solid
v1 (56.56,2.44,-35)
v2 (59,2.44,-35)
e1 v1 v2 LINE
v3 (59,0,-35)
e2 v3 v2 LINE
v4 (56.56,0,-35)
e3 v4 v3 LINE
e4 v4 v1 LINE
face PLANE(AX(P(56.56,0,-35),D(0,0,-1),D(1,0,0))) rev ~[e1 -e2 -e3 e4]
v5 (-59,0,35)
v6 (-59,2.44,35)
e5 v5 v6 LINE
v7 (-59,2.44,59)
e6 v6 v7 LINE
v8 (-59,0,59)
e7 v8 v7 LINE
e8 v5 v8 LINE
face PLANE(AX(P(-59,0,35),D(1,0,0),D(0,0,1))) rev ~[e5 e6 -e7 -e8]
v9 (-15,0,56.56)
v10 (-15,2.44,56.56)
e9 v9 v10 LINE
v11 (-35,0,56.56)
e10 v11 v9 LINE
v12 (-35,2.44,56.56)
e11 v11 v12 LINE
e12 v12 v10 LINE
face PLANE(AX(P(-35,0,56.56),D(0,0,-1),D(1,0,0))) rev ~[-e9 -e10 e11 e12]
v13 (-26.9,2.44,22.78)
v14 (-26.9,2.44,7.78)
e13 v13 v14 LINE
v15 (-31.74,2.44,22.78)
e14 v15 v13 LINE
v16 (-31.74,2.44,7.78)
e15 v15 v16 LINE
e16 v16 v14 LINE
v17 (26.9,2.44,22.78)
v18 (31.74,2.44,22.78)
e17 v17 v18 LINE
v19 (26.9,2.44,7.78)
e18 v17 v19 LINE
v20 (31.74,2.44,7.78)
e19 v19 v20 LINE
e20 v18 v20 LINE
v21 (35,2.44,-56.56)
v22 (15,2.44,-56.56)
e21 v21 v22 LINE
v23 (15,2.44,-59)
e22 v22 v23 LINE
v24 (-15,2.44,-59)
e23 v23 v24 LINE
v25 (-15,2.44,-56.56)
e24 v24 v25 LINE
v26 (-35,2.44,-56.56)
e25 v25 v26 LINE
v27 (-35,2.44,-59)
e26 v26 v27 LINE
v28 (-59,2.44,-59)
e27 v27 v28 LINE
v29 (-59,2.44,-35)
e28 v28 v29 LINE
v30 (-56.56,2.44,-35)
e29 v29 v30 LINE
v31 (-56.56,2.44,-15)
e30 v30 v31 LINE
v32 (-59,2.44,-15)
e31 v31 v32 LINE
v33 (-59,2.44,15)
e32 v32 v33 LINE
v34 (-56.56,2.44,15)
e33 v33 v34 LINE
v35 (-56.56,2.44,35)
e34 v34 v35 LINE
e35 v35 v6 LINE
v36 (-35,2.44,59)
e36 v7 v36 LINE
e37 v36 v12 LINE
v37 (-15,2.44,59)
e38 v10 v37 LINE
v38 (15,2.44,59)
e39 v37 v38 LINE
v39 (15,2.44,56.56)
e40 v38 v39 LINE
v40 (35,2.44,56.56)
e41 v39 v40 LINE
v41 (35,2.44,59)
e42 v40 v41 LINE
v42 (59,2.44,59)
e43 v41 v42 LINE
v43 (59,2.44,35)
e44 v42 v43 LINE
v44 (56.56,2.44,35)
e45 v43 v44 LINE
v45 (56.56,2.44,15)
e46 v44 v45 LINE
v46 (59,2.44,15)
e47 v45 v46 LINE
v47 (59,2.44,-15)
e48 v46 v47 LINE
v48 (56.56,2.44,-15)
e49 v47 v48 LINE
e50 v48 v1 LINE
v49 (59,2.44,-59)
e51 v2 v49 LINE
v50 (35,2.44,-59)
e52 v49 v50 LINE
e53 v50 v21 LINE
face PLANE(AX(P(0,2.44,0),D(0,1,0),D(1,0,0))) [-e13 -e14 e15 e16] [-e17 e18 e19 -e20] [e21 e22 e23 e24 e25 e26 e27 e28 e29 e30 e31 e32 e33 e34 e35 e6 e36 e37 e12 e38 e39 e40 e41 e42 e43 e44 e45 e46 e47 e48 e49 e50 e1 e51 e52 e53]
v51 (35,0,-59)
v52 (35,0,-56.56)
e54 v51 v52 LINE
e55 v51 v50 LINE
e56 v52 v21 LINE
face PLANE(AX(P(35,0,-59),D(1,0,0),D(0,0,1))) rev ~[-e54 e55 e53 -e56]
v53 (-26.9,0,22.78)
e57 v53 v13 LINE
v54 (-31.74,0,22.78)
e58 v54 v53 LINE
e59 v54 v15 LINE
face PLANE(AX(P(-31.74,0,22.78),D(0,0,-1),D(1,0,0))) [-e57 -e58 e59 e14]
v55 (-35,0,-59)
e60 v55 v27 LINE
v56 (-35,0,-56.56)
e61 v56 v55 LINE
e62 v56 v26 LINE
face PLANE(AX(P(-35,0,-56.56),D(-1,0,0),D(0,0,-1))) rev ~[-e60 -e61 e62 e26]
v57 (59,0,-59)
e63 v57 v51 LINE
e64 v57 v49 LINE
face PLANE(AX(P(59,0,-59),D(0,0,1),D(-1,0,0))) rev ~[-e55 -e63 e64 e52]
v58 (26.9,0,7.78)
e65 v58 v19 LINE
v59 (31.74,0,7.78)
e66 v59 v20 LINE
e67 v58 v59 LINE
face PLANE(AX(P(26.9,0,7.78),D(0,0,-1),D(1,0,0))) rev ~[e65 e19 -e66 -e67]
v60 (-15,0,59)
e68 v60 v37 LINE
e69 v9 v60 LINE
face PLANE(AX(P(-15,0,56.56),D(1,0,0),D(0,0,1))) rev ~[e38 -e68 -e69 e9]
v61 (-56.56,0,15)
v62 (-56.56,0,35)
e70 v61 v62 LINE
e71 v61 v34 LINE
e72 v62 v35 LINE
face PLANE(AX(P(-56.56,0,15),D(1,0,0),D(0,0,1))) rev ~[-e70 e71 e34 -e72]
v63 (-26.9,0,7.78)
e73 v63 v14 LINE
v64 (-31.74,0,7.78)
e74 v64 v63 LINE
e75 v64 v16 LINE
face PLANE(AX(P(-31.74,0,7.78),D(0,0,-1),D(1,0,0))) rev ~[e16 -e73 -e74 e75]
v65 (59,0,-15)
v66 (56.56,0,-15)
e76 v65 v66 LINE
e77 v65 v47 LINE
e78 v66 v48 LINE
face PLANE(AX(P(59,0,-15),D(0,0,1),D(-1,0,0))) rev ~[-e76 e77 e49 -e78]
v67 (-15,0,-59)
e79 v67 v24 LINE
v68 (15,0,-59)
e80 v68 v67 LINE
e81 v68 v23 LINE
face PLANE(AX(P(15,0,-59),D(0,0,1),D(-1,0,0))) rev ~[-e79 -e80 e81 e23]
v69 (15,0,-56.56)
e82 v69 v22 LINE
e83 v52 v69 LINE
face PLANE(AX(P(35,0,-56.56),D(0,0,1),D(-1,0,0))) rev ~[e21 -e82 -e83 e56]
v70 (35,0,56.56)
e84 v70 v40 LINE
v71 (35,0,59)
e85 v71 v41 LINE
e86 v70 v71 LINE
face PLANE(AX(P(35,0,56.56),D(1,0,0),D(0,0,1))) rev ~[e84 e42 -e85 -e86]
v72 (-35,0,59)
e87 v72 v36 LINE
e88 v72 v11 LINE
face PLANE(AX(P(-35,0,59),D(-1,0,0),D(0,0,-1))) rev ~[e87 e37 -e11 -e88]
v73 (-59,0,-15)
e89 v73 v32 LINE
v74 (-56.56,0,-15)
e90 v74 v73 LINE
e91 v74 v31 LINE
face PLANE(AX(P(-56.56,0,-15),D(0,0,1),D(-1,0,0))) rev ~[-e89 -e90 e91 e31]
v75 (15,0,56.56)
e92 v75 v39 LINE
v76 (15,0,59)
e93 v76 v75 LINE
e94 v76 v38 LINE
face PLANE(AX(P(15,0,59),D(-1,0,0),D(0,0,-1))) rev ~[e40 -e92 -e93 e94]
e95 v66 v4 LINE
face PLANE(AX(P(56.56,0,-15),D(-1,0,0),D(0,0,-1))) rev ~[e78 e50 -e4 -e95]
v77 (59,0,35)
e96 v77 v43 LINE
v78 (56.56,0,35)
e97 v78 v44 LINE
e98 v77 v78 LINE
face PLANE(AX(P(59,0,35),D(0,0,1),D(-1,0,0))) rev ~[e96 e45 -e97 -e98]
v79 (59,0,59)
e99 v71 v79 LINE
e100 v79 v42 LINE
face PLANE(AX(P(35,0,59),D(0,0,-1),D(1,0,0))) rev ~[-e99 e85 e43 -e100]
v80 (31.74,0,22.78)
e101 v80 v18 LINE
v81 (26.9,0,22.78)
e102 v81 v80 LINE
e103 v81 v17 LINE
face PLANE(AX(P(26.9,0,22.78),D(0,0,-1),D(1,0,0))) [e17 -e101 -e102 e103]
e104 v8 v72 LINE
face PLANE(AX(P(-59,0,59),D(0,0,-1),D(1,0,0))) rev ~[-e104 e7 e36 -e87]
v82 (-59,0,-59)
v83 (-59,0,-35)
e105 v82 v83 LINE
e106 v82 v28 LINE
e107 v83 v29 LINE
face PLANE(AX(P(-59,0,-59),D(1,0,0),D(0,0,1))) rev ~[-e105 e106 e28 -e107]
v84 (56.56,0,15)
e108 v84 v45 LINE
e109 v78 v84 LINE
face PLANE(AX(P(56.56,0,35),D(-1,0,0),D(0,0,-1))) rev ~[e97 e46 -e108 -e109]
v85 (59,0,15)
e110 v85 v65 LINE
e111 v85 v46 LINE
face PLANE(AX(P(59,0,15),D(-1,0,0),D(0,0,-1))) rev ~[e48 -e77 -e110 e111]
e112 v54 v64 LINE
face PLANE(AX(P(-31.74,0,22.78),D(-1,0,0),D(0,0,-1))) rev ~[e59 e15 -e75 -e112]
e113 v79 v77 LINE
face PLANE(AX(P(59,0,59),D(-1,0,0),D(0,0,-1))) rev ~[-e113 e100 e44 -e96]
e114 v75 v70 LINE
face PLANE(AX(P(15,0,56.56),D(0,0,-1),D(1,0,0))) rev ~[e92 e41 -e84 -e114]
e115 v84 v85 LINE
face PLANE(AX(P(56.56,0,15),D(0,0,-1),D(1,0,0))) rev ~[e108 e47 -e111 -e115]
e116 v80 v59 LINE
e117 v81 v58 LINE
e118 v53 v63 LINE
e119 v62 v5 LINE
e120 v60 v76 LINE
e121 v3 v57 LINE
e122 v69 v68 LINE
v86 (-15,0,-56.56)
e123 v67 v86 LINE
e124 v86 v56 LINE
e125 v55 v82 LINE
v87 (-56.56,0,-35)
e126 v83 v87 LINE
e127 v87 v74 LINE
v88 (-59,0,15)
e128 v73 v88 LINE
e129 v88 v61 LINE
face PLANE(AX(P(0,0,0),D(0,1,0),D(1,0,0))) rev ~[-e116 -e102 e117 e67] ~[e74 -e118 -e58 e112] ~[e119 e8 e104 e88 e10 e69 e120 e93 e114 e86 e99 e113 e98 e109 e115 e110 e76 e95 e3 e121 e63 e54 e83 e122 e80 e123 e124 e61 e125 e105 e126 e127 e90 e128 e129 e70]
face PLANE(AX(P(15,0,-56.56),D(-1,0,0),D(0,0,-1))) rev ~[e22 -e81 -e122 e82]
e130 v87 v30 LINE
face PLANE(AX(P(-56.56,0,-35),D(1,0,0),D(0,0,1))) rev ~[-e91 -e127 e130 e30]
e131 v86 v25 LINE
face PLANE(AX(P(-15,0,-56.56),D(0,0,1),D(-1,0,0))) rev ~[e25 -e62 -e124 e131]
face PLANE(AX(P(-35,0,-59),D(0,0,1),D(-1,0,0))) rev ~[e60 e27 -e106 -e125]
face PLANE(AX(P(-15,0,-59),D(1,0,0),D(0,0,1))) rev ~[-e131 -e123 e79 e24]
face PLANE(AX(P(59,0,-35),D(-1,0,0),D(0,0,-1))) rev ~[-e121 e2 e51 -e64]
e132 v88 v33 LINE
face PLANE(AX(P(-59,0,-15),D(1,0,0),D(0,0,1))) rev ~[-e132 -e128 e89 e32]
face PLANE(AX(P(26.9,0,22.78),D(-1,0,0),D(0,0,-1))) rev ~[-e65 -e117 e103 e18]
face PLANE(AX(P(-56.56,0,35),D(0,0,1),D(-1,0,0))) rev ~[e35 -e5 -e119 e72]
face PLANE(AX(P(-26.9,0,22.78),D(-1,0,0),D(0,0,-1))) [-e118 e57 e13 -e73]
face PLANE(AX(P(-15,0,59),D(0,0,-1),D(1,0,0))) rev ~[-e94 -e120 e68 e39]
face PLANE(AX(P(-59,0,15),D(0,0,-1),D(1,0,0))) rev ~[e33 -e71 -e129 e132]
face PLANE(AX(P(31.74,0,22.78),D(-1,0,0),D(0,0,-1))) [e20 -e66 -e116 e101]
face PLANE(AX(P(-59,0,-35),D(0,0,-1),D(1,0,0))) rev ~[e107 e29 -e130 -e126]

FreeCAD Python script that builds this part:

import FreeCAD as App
import Part
import Sketcher


def add_polygon(sketch, points):
    """Adds a closed chain of lines whose ends are joined by coincident constraints."""
    first, n = sketch.GeometryCount, len(points)
    for a, b in zip(points, points[1:] + points[:1]):
        sketch.addGeometry(Part.LineSegment(App.Vector(*a, 0), App.Vector(*b, 0)), False)
    for i in range(n):
        sketch.addConstraint(Sketcher.Constraint("Coincident", first + i, 2, first + (i + 1) % n, 1))

doc = App.newDocument("Part")
params = doc.addObject("Spreadsheet::Sheet", "Params")
for row, (alias, value) in enumerate([
    ("sketch1_width", "24 mm"),
    ("sketch1_width2", "20 mm"),
    ("sketch1_width3", "30 mm"),
    ("sketch1_height", "15 mm"),
    ("sketch1_width4", "2.44 mm"),
    ("pad1_length", "2.44 mm"),
], start=1):
    params.set(f"A{row}", alias)
    params.set(f"B{row}", "=" + value)
    params.setAlias(f"B{row}", alias)

body = doc.addObject("PartDesign::Body", "Body")

# Sketch on XZ plane
sketch1 = doc.addObject("Sketcher::SketchObject", "Sketch")
body.addObject(sketch1)
sketch1.AttachmentSupport = (doc.XZ_Plane, [""])
sketch1.MapMode = "FlatFace"
add_polygon(sketch1, [(-59, 59), (-35, 59), (-35, 56.6), (-15, 56.6), (-15, 59), (15, 59), (15, 56.6), (35, 56.6), (35, 59), (59, 59), (59, 35), (56.6, 35), (56.6, 15), (59, 15), (59, -15), (56.6, -15), (56.6, -35), (59, -35), (59, -59), (35, -59), (35, -56.6), (15, -56.6), (15, -59), (-15, -59), (-15, -56.6), (-35, -56.6), (-35, -59), (-59, -59), (-59, -35), (-56.6, -35), (-56.6, -15), (-59, -15), (-59, 15), (-56.6, 15), (-56.6, 35), (-59, 35)])  # lines 0-35
add_polygon(sketch1, [(-26.9, 22.8), (-31.7, 22.8), (-31.7, 7.8), (-26.9, 7.8)])  # lines 36-39
add_polygon(sketch1, [(31.7, 22.8), (26.9, 22.8), (26.9, 7.8), (31.7, 7.8)])  # lines 40-43
sketch1.addConstraint(Sketcher.Constraint("Horizontal", 0))
sketch1.addConstraint(Sketcher.Constraint("Vertical", 1))
sketch1.addConstraint(Sketcher.Constraint("Horizontal", 2))
sketch1.addConstraint(Sketcher.Constraint("Vertical", 3))
sketch1.addConstraint(Sketcher.Constraint("Horizontal", 4))
sketch1.addConstraint(Sketcher.Constraint("Vertical", 5))
sketch1.addConstraint(Sketcher.Constraint("Horizontal", 6))
sketch1.addConstraint(Sketcher.Constraint("Vertical", 7))
sketch1.addConstraint(Sketcher.Constraint("Horizontal", 8))
sketch1.addConstraint(Sketcher.Constraint("Vertical", 9))
sketch1.addConstraint(Sketcher.Constraint("Horizontal", 10))
sketch1.addConstraint(Sketcher.Constraint("Vertical", 11))
sketch1.addConstraint(Sketcher.Constraint("Horizontal", 12))
sketch1.addConstraint(Sketcher.Constraint("Vertical", 13))
sketch1.addConstraint(Sketcher.Constraint("Horizontal", 14))
sketch1.addConstraint(Sketcher.Constraint("Vertical", 15))
sketch1.addConstraint(Sketcher.Constraint("Horizontal", 16))
sketch1.addConstraint(Sketcher.Constraint("Vertical", 17))
sketch1.addConstraint(Sketcher.Constraint("Horizontal", 18))
sketch1.addConstraint(Sketcher.Constraint("Vertical", 19))
sketch1.addConstraint(Sketcher.Constraint("Horizontal", 20))
sketch1.addConstraint(Sketcher.Constraint("Vertical", 21))
sketch1.addConstraint(Sketcher.Constraint("Horizontal", 22))
sketch1.addConstraint(Sketcher.Constraint("Vertical", 23))
sketch1.addConstraint(Sketcher.Constraint("Horizontal", 24))
sketch1.addConstraint(Sketcher.Constraint("Vertical", 25))
sketch1.addConstraint(Sketcher.Constraint("Horizontal", 26))
sketch1.addConstraint(Sketcher.Constraint("Vertical", 27))
sketch1.addConstraint(Sketcher.Constraint("Horizontal", 28))
sketch1.addConstraint(Sketcher.Constraint("Vertical", 29))
sketch1.addConstraint(Sketcher.Constraint("Horizontal", 30))
sketch1.addConstraint(Sketcher.Constraint("Vertical", 31))
sketch1.addConstraint(Sketcher.Constraint("Horizontal", 32))
sketch1.addConstraint(Sketcher.Constraint("Vertical", 33))
sketch1.addConstraint(Sketcher.Constraint("Horizontal", 34))
sketch1.addConstraint(Sketcher.Constraint("Vertical", 35))
sketch1.addConstraint(Sketcher.Constraint("Horizontal", 36))
sketch1.addConstraint(Sketcher.Constraint("Vertical", 37))
sketch1.addConstraint(Sketcher.Constraint("Horizontal", 38))
sketch1.addConstraint(Sketcher.Constraint("Vertical", 39))
sketch1.addConstraint(Sketcher.Constraint("Horizontal", 40))
sketch1.addConstraint(Sketcher.Constraint("Vertical", 41))
sketch1.addConstraint(Sketcher.Constraint("Horizontal", 42))
sketch1.addConstraint(Sketcher.Constraint("Vertical", 43))
sketch1.addConstraint(Sketcher.Constraint("Symmetric", 0, 2, 18, 2, -1, 1))
sketch1.addConstraint(Sketcher.Constraint("Symmetric", 2, 2, 20, 2, -1, 1))
sketch1.addConstraint(Sketcher.Constraint("Symmetric", 4, 2, 22, 2, -1, 1))
sketch1.addConstraint(Sketcher.Constraint("Symmetric", 6, 2, 24, 2, -1, 1))
sketch1.addConstraint(Sketcher.Constraint("Symmetric", 8, 2, 26, 2, -1, 1))
sketch1.addConstraint(Sketcher.Constraint("Symmetric", 10, 2, 28, 2, -1, 1))
sketch1.addConstraint(Sketcher.Constraint("Symmetric", 12, 2, 30, 2, -1, 1))
sketch1.addConstraint(Sketcher.Constraint("Symmetric", 14, 2, 32, 2, -1, 1))
sketch1.addConstraint(Sketcher.Constraint("Symmetric", 16, 2, 34, 2, -1, 1))
sketch1.addConstraint(Sketcher.Constraint("Symmetric", 2, 2, 5, 2, -2))
sketch1.addConstraint(Sketcher.Constraint("Symmetric", 0, 2, 7, 2, -2))
sketch1.addConstraint(Sketcher.Constraint("Symmetric", 16, 2, 27, 2, -2))
sketch1.addConstraint(Sketcher.Constraint("Symmetric", 14, 2, 29, 2, -2))
sketch1.addConstraint(Sketcher.Constraint("Symmetric", 39, 2, 40, 2, -2))
sketch1.addConstraint(Sketcher.Constraint("Symmetric", 37, 2, 42, 2, -2))
sketch1.addConstraint(Sketcher.Constraint("Horizontal", 0, 2, 3, 2))
sketch1.addConstraint(Sketcher.Constraint("Vertical", 9, 2, 12, 2))
sketch1.addConstraint(Sketcher.Constraint("Equal", 34, 1))
sketch1.addConstraint(Sketcher.Constraint("Equal", 26, 9))
sketch1.addConstraint(Sketcher.Constraint("Equal", 24, 11))
sketch1.addConstraint(Sketcher.Constraint("Equal", 22, 13))
sketch1.addConstraint(Sketcher.Constraint("DistanceX", 0, 1, 0, 2, 24.0))
sketch1.addConstraint(Sketcher.Constraint("DistanceX", 2, 1, 2, 2, 20.0))
sketch1.addConstraint(Sketcher.Constraint("DistanceX", 4, 1, 4, 2, 30.0))
sketch1.addConstraint(Sketcher.Constraint("DistanceY", 37, 2, 37, 1, 15.0))
sketch1.addConstraint(Sketcher.Constraint("DistanceX", 10, 2, 10, 1, 2.44))
sketch1.addConstraint(Sketcher.Constraint("DistanceX", 36, 2, 36, 1, 4.84))
sketch1.addConstraint(Sketcher.Constraint("DistanceX", 38, 2, -1, 1, 26.9))
sketch1.addConstraint(Sketcher.Constraint("DistanceY", -1, 1, 36, 2, 22.78))
sketch1.setExpression("Constraints[109]", "Params.sketch1_width")
sketch1.setExpression("Constraints[110]", "Params.sketch1_width2")
sketch1.setExpression("Constraints[111]", "Params.sketch1_width3")
sketch1.setExpression("Constraints[112]", "Params.sketch1_height")
sketch1.setExpression("Constraints[113]", "Params.sketch1_width4")
pad1 = doc.addObject("PartDesign::Pad", "Pad")
body.addObject(pad1)
pad1.Profile = sketch1
pad1.setExpression("Length", "Params.pad1_length")
pad1.Reversed = True

doc.recompute()
